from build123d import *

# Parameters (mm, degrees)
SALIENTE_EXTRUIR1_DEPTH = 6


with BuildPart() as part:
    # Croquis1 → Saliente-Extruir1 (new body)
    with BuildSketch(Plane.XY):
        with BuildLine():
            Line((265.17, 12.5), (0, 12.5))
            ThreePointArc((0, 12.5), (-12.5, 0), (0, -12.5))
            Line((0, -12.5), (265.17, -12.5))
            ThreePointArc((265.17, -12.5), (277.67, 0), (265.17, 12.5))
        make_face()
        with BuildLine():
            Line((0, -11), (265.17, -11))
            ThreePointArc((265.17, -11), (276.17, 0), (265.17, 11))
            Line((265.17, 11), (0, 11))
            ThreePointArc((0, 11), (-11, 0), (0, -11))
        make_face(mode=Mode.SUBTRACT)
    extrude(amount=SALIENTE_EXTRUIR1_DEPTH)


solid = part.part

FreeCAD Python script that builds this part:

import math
import FreeCAD as App
import Part
import Sketcher
from FreeCAD import Vector

doc = App.newDocument("Part")
body = doc.addObject("PartDesign::Body", "Body")

# Sketch on XY plane
sketch1 = body.newObject("Sketcher::SketchObject", "Sketch")
sketch1.AttachmentSupport = (doc.getObject("XY_Plane"), [""])
sketch1.MapMode = "FlatFace"
sketch1.addGeometry([
    Part.LineSegment(Vector(265, 12, 0), Vector(0, 12, 0)),  # 0
    Part.ArcOfCircle(Part.Circle(Vector(0, 0, 0), Vector(0, 0, 1), 12), math.radians(90), math.radians(270)),  # 1
    Part.LineSegment(Vector(0, -12, 0), Vector(265, -12, 0)),  # 2
    Part.ArcOfCircle(Part.Circle(Vector(265, 0, 0), Vector(0, 0, 1), 12), math.radians(-90), math.radians(90)),  # 3
    Part.LineSegment(Vector(265, -11, 0), Vector(0, -11, 0)),  # 4
    Part.ArcOfCircle(Part.Circle(Vector(0, 0, 0), Vector(0, 0, 1), 11), math.radians(90), math.radians(270)),  # 5
    Part.LineSegment(Vector(0, 11, 0), Vector(265, 11, 0)),  # 6
    Part.ArcOfCircle(Part.Circle(Vector(265, 0, 0), Vector(0, 0, 1), 11), math.radians(-90), math.radians(90)),  # 7
], False)
sketch1.addConstraint([
    Sketcher.Constraint("Tangent", 0, 2, 1, 1),
    Sketcher.Constraint("Tangent", 1, 2, 2, 1),
    Sketcher.Constraint("Tangent", 2, 2, 3, 1),
    Sketcher.Constraint("Tangent", 3, 2, 0, 1),
    Sketcher.Constraint("Tangent", 4, 2, 5, 2),
    Sketcher.Constraint("Tangent", 5, 1, 6, 1),
    Sketcher.Constraint("Tangent", 6, 2, 7, 2),
    Sketcher.Constraint("Tangent", 7, 1, 4, 1),
    Sketcher.Constraint("Horizontal", 0),
    Sketcher.Constraint("Horizontal", 2),
    Sketcher.Constraint("Horizontal", 4),
    Sketcher.Constraint("Horizontal", 6),
    Sketcher.Constraint("Coincident", 1, 3, -1, 1),
    Sketcher.Constraint("Coincident", 5, 3, -1, 1),
    Sketcher.Constraint("Vertical", 7, 3, 2, 2),
    Sketcher.Constraint("Radius", 5, 11.0),
    Sketcher.Constraint("Radius", 1, 12.5),
    Sketcher.Constraint("DistanceX", 0, 2, 0, 1, 265.17),
])
pad1 = body.newObject("PartDesign::Pad", "Pad")
pad1.Profile = sketch1
pad1.Length = 6

doc.recompute()
